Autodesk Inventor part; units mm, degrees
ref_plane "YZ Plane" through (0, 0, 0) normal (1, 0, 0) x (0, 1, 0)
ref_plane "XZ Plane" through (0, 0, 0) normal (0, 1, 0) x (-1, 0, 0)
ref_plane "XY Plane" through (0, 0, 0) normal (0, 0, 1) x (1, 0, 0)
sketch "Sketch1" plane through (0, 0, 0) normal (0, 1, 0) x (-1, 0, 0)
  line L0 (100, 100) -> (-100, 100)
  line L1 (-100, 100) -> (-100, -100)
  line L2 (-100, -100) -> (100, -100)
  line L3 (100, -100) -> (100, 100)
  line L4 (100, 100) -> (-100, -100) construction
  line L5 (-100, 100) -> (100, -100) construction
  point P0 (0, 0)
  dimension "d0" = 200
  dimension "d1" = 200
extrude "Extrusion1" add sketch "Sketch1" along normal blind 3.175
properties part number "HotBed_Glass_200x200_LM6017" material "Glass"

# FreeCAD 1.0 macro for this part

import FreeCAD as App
import Part
import Sketcher
Q = App.Units.Quantity


def add_polygon(sketch, points):
    """Adds a closed chain of lines whose ends are joined by coincident constraints."""
    first, n = sketch.GeometryCount, len(points)
    for a, b in zip(points, points[1:] + points[:1]):
        sketch.addGeometry(Part.LineSegment(App.Vector(*a, 0), App.Vector(*b, 0)), False)
    for i in range(n):
        sketch.addConstraint(Sketcher.Constraint("Coincident", first + i, 2, first + (i + 1) % n, 1))

doc = App.newDocument("Part")
params = doc.addObject("Spreadsheet::Sheet", "Params")
for row, (alias, value) in enumerate([
    ("sketch1_width", "200 mm"),
    ("pad1_length", "3.175 mm"),
], start=1):
    params.set(f"A{row}", alias)
    params.set(f"B{row}", "=" + value)
    params.setAlias(f"B{row}", alias)

body = doc.addObject("PartDesign::Body", "Body")

sketch1 = body.newObject("Sketcher::SketchObject", "Sketch")
sketch1.AttachmentSupport = (doc.getObject("XZ_Plane"), [""])
sketch1.MapMode = "FlatFace"
add_polygon(sketch1, [(-100, -100), (-100, 100), (100, 100), (100, -100)])
sketch1.addConstraint(Sketcher.Constraint("Vertical", 0))
sketch1.addConstraint(Sketcher.Constraint("Horizontal", 1))
sketch1.addConstraint(Sketcher.Constraint("Vertical", 2))
sketch1.addConstraint(Sketcher.Constraint("Horizontal", 3))
sketch1.addConstraint(Sketcher.Constraint("Symmetric", 0, 2, 2, 2, -1, 1))
sketch1.addConstraint(Sketcher.Constraint("Equal", 3, 0))
sketch1.addConstraint(Sketcher.Constraint("DistanceX", 1, 1, 1, 2, Q("200 mm")))
sketch1.setExpression("Constraints[10]", "Params.sketch1_width")
pad1 = body.newObject("PartDesign::Pad", "Pad")
pad1.Profile = sketch1
pad1.setExpression("Length", "Params.pad1_length")
pad1.Reversed = True

doc.recompute()
